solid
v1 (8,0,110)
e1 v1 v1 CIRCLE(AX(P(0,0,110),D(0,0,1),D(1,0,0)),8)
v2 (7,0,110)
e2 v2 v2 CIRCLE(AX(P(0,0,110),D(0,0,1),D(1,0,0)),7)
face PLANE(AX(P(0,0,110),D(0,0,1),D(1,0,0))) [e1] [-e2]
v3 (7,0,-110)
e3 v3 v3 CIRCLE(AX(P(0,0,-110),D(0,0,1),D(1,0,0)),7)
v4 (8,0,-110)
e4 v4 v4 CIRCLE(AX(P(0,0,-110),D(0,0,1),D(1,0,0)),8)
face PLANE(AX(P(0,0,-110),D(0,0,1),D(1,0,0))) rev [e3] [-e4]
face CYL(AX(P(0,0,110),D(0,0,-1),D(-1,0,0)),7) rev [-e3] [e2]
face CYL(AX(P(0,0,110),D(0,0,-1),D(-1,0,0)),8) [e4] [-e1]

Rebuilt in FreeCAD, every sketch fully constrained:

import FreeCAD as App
import Part
import Sketcher

V = App.Vector

doc = App.newDocument("Part")
body = doc.addObject("PartDesign::Body", "Body")

# Sketch on XY plane
sketch1 = body.newObject("Sketcher::SketchObject", "Sketch")
sketch1.AttachmentSupport = (doc.getObject("XY_Plane"), [""])
sketch1.MapMode = "FlatFace"
sketch1.addGeometry([
    Part.Circle(V(0, 0, 0), V(0, 0, 1), 8),
    Part.Circle(V(0, 0, 0), V(0, 0, 1), 7),
], False)
sketch1.addConstraint([
    Sketcher.Constraint("Coincident", 0, 3, -1, 1),
    Sketcher.Constraint("Coincident", 1, 3, -1, 1),
    Sketcher.Constraint("Diameter", 0, 16.0),
    Sketcher.Constraint("Diameter", 1, 14.0),
])
pad1 = body.newObject("PartDesign::Pad", "Pad")
pad1.Profile = sketch1
pad1.Length = 220
pad1.Midplane = True

doc.recompute()
